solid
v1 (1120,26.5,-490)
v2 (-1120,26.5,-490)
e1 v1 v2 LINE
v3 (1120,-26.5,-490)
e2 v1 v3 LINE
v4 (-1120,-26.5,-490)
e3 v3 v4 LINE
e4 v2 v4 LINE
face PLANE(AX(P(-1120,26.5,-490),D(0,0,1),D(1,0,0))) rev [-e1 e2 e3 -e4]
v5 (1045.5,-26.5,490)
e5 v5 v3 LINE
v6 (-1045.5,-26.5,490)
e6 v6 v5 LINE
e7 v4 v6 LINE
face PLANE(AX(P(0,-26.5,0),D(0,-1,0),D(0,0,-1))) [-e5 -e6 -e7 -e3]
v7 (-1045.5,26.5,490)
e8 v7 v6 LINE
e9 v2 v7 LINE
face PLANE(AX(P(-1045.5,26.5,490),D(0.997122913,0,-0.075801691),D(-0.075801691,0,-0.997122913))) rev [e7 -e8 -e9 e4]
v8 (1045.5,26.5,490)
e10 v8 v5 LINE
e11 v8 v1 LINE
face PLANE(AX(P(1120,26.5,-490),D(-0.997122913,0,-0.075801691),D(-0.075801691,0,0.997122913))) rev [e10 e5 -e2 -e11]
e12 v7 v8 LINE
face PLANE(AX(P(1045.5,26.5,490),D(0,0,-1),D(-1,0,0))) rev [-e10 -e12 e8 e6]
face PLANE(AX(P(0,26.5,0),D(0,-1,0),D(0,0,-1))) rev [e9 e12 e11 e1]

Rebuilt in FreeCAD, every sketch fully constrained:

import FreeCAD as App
import Part
import Sketcher


def add_polygon(sketch, points):
    """Adds a closed chain of lines whose ends are joined by coincident constraints."""
    first, n = sketch.GeometryCount, len(points)
    for a, b in zip(points, points[1:] + points[:1]):
        sketch.addGeometry(Part.LineSegment(App.Vector(*a, 0), App.Vector(*b, 0)), False)
    for i in range(n):
        sketch.addConstraint(Sketcher.Constraint("Coincident", first + i, 2, first + (i + 1) % n, 1))

doc = App.newDocument("Part")
params = doc.addObject("Spreadsheet::Sheet", "Params")
for row, (alias, value) in enumerate([
    ("sketch1_width", "2240 mm"),
    ("sketch1_width2", "2091 mm"),
    ("pad1_length", "53 mm"),
], start=1):
    params.set(f"A{row}", alias)
    params.set(f"B{row}", "=" + value)
    params.setAlias(f"B{row}", alias)

body = doc.addObject("PartDesign::Body", "Body")

# Sketch on XZ plane
sketch1 = body.newObject("Sketcher::SketchObject", "Sketch")
sketch1.AttachmentSupport = (doc.getObject("XZ_Plane"), [""])
sketch1.MapMode = "FlatFace"
add_polygon(sketch1, [(1120, -490), (-1120, -490), (-1045.5, 490), (1045.5, 490)])  # lines 0-3
sketch1.addConstraint(Sketcher.Constraint("Horizontal", 0))
sketch1.addConstraint(Sketcher.Constraint("Horizontal", 2))
sketch1.addConstraint(Sketcher.Constraint("Equal", 1, 3))
sketch1.addConstraint(Sketcher.Constraint("DistanceX", 0, 2, 0, 1, 2240.0))
sketch1.addConstraint(Sketcher.Constraint("DistanceX", 2, 1, 2, 2, 2091.0))
sketch1.addConstraint(Sketcher.Constraint("DistanceX", 0, 2, -1, 1, 1120.0))
sketch1.addConstraint(Sketcher.Constraint("DistanceY", 0, 2, -1, 1, 490.0))
sketch1.addConstraint(Sketcher.Constraint("DistanceY", -1, 1, 1, 2, 490.0))
sketch1.setExpression("Constraints[7]", "Params.sketch1_width")
sketch1.setExpression("Constraints[8]", "Params.sketch1_width2")
pad1 = body.newObject("PartDesign::Pad", "Pad")
pad1.Profile = sketch1
pad1.setExpression("Length", "Params.pad1_length")
pad1.Midplane = True

doc.recompute()
